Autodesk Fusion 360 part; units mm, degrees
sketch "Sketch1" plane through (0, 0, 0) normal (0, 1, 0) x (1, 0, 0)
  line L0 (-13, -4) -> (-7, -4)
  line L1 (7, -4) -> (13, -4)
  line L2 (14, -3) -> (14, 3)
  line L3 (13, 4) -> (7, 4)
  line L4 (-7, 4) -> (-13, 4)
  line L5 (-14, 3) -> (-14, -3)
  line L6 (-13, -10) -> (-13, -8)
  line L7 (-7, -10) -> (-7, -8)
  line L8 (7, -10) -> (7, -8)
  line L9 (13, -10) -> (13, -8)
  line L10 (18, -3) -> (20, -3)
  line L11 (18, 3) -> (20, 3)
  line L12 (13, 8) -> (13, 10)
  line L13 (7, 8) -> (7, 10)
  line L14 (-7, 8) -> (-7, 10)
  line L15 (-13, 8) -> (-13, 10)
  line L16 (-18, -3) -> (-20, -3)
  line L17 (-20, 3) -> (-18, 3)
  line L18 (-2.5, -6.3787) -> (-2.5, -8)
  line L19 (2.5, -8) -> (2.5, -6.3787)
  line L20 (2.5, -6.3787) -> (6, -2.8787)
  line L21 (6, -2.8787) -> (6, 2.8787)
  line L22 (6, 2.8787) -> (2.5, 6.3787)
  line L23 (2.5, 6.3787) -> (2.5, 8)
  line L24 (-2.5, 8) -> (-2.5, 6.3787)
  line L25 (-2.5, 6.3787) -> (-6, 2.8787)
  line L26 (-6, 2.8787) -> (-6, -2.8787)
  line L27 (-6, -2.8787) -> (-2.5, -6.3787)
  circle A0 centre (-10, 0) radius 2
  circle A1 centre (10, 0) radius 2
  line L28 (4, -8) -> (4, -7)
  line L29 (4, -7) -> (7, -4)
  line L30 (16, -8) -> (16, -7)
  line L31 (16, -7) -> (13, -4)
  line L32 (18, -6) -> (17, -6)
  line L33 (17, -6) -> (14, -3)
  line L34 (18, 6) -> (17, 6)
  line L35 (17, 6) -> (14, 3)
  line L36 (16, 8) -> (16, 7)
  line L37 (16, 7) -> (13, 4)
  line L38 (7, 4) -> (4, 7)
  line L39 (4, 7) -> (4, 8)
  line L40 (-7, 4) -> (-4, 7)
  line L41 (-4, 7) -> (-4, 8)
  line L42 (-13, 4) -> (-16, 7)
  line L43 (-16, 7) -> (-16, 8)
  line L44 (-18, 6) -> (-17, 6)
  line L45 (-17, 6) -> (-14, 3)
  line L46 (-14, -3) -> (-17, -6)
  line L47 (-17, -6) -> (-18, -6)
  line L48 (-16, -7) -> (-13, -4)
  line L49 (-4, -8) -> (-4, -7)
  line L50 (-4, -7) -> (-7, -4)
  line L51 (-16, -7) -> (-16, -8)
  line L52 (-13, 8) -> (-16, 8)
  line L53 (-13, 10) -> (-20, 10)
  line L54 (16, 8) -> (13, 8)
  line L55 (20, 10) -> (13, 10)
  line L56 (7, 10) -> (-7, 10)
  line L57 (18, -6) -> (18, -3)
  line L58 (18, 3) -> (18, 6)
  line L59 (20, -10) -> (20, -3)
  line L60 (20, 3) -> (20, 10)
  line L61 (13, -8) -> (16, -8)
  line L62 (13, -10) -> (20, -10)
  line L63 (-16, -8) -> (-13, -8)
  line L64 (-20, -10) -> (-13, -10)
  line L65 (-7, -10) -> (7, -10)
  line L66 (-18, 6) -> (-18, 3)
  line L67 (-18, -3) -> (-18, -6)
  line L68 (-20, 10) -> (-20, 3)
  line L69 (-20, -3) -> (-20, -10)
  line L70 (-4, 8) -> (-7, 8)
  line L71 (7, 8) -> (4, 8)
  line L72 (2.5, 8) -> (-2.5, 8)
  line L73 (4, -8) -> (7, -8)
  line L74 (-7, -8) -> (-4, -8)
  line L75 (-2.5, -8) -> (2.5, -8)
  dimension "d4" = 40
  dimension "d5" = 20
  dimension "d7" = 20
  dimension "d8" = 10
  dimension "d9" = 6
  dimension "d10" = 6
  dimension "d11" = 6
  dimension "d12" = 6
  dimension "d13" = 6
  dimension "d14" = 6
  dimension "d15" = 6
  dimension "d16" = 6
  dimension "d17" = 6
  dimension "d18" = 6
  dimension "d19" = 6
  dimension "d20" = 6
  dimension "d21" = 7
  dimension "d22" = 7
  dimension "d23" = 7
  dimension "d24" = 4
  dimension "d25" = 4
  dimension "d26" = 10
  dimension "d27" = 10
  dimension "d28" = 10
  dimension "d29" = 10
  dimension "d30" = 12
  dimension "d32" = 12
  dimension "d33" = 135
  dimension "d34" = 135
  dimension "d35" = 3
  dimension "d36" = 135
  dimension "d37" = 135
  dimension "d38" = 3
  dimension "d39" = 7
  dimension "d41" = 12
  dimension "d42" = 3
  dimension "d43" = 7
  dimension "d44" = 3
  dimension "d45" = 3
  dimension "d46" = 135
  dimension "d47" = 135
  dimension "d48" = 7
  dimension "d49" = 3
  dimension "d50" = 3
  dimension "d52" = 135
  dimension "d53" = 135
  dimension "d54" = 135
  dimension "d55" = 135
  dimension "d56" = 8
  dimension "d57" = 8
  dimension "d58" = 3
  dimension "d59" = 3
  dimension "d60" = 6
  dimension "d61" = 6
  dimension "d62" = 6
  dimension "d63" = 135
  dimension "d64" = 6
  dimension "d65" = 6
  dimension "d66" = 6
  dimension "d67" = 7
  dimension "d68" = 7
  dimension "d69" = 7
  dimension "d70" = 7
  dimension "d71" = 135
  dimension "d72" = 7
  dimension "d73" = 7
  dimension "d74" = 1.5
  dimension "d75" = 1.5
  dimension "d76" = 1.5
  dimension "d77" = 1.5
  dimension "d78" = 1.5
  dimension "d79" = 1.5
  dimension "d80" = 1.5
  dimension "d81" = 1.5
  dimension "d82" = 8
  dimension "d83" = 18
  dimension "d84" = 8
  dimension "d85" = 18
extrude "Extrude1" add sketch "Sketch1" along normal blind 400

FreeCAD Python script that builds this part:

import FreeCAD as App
import Part
import Sketcher


def add_polygon(sketch, points):
    """Adds a closed chain of lines whose ends are joined by coincident constraints."""
    first, n = sketch.GeometryCount, len(points)
    for a, b in zip(points, points[1:] + points[:1]):
        sketch.addGeometry(Part.LineSegment(App.Vector(*a, 0), App.Vector(*b, 0)), False)
    for i in range(n):
        sketch.addConstraint(Sketcher.Constraint("Coincident", first + i, 2, first + (i + 1) % n, 1))

doc = App.newDocument("Part")
params = doc.addObject("Spreadsheet::Sheet", "Params")
for row, (alias, value) in enumerate([
    ("sketch1_diameter", "4 mm"),
    ("sketch1_width", "6 mm"),
    ("sketch1_width2", "3 mm"),
    ("sketch1_width3", "7 mm"),
    ("sketch1_width4", "5 mm"),
    ("pad1_length", "400 mm"),
], start=1):
    params.set(f"A{row}", alias)
    params.set(f"B{row}", "=" + value)
    params.setAlias(f"B{row}", alias)

body = doc.addObject("PartDesign::Body", "Body")

# Sketch on XZ plane
sketch1 = body.newObject("Sketcher::SketchObject", "Sketch")
sketch1.AttachmentSupport = (doc.getObject("XZ_Plane"), [""])
sketch1.MapMode = "FlatFace"
add_polygon(sketch1, [(-16, 7), (-13, 4), (-7, 4), (-4, 7), (-4, 8), (-7, 8), (-7, 10), (7, 10), (7, 8), (4, 8), (4, 7), (7, 4), (13, 4), (16, 7), (16, 8), (13, 8), (13, 10), (20, 10), (20, 3), (18, 3), (18, 6), (17, 6), (14, 3), (14, -3), (17, -6), (18, -6), (18, -3), (20, -3), (20, -10), (13, -10), (13, -8), (16, -8), (16, -7), (13, -4), (7, -4), (4, -7), (4, -8), (7, -8), (7, -10), (-7, -10), (-7, -8), (-4, -8), (-4, -7), (-7, -4), (-13, -4), (-16, -7), (-16, -8), (-13, -8), (-13, -10), (-20, -10), (-20, -3), (-18, -3), (-18, -6), (-17, -6), (-14, -3), (-14, 3), (-17, 6), (-18, 6), (-18, 3), (-20, 3), (-20, 10), (-13, 10), (-13, 8), (-16, 8)])  # lines 0-63
sketch1.addGeometry(Part.Circle(App.Vector(-10, 0, 0), App.Vector(0, 0, 1), 2), False)  # 64
add_polygon(sketch1, [(-2.5, 8), (-2.5, 6.4), (-6, 2.9), (-6, -2.9), (-2.5, -6.4), (-2.5, -8), (2.5, -8), (2.5, -6.4), (6, -2.9), (6, 2.9), (2.5, 6.4), (2.5, 8)])  # lines 65-76
sketch1.addGeometry(Part.Circle(App.Vector(10, 0, 0), App.Vector(0, 0, 1), 2), False)  # 77
sketch1.addConstraint(Sketcher.Constraint("Horizontal", 1))
sketch1.addConstraint(Sketcher.Constraint("Vertical", 3))
sketch1.addConstraint(Sketcher.Constraint("Horizontal", 4))
sketch1.addConstraint(Sketcher.Constraint("Vertical", 5))
sketch1.addConstraint(Sketcher.Constraint("Horizontal", 6))
sketch1.addConstraint(Sketcher.Constraint("Vertical", 7))
sketch1.addConstraint(Sketcher.Constraint("Horizontal", 8))
sketch1.addConstraint(Sketcher.Constraint("Vertical", 9))
sketch1.addConstraint(Sketcher.Constraint("Horizontal", 11))
sketch1.addConstraint(Sketcher.Constraint("Vertical", 13))
sketch1.addConstraint(Sketcher.Constraint("Horizontal", 14))
sketch1.addConstraint(Sketcher.Constraint("Vertical", 15))
sketch1.addConstraint(Sketcher.Constraint("Horizontal", 16))
sketch1.addConstraint(Sketcher.Constraint("Vertical", 17))
sketch1.addConstraint(Sketcher.Constraint("Horizontal", 18))
sketch1.addConstraint(Sketcher.Constraint("Vertical", 19))
sketch1.addConstraint(Sketcher.Constraint("Horizontal", 20))
sketch1.addConstraint(Sketcher.Constraint("Vertical", 22))
sketch1.addConstraint(Sketcher.Constraint("Horizontal", 24))
sketch1.addConstraint(Sketcher.Constraint("Vertical", 25))
sketch1.addConstraint(Sketcher.Constraint("Horizontal", 26))
sketch1.addConstraint(Sketcher.Constraint("Vertical", 27))
sketch1.addConstraint(Sketcher.Constraint("Horizontal", 28))
sketch1.addConstraint(Sketcher.Constraint("Vertical", 29))
sketch1.addConstraint(Sketcher.Constraint("Horizontal", 30))
sketch1.addConstraint(Sketcher.Constraint("Vertical", 31))
sketch1.addConstraint(Sketcher.Constraint("Horizontal", 33))
sketch1.addConstraint(Sketcher.Constraint("Vertical", 35))
sketch1.addConstraint(Sketcher.Constraint("Horizontal", 36))
sketch1.addConstraint(Sketcher.Constraint("Vertical", 37))
sketch1.addConstraint(Sketcher.Constraint("Horizontal", 38))
sketch1.addConstraint(Sketcher.Constraint("Vertical", 39))
sketch1.addConstraint(Sketcher.Constraint("Horizontal", 40))
sketch1.addConstraint(Sketcher.Constraint("Vertical", 41))
sketch1.addConstraint(Sketcher.Constraint("Horizontal", 43))
sketch1.addConstraint(Sketcher.Constraint("Vertical", 45))
sketch1.addConstraint(Sketcher.Constraint("Horizontal", 46))
sketch1.addConstraint(Sketcher.Constraint("Vertical", 47))
sketch1.addConstraint(Sketcher.Constraint("Horizontal", 48))
sketch1.addConstraint(Sketcher.Constraint("Vertical", 49))
sketch1.addConstraint(Sketcher.Constraint("Horizontal", 50))
sketch1.addConstraint(Sketcher.Constraint("Vertical", 51))
sketch1.addConstraint(Sketcher.Constraint("Horizontal", 52))
sketch1.addConstraint(Sketcher.Constraint("Vertical", 54))
sketch1.addConstraint(Sketcher.Constraint("Horizontal", 56))
sketch1.addConstraint(Sketcher.Constraint("Vertical", 57))
sketch1.addConstraint(Sketcher.Constraint("Horizontal", 58))
sketch1.addConstraint(Sketcher.Constraint("Vertical", 59))
sketch1.addConstraint(Sketcher.Constraint("Horizontal", 60))
sketch1.addConstraint(Sketcher.Constraint("Vertical", 61))
sketch1.addConstraint(Sketcher.Constraint("Horizontal", 62))
sketch1.addConstraint(Sketcher.Constraint("Vertical", 63))
sketch1.addConstraint(Sketcher.Constraint("Vertical", 65))
sketch1.addConstraint(Sketcher.Constraint("Vertical", 67))
sketch1.addConstraint(Sketcher.Constraint("Vertical", 69))
sketch1.addConstraint(Sketcher.Constraint("Horizontal", 70))
sketch1.addConstraint(Sketcher.Constraint("Vertical", 71))
sketch1.addConstraint(Sketcher.Constraint("Vertical", 73))
sketch1.addConstraint(Sketcher.Constraint("Vertical", 75))
sketch1.addConstraint(Sketcher.Constraint("Horizontal", 76))
sketch1.addConstraint(Sketcher.Constraint("Equal", 64, 77))
sketch1.addConstraint(Sketcher.Constraint("Symmetric", 64, 3, 77, 3, -1, 1))
sketch1.addConstraint(Sketcher.Constraint("Symmetric", 0, 2, 32, 2, -1, 1))
sketch1.addConstraint(Sketcher.Constraint("Symmetric", 2, 2, 34, 2, -1, 1))
sketch1.addConstraint(Sketcher.Constraint("Symmetric", 4, 2, 36, 2, -1, 1))
sketch1.addConstraint(Sketcher.Constraint("Symmetric", 6, 2, 38, 2, -1, 1))
sketch1.addConstraint(Sketcher.Constraint("Symmetric", 8, 2, 40, 2, -1, 1))
sketch1.addConstraint(Sketcher.Constraint("Symmetric", 10, 2, 42, 2, -1, 1))
sketch1.addConstraint(Sketcher.Constraint("Symmetric", 12, 2, 44, 2, -1, 1))
sketch1.addConstraint(Sketcher.Constraint("Symmetric", 14, 2, 46, 2, -1, 1))
sketch1.addConstraint(Sketcher.Constraint("Symmetric", 16, 2, 48, 2, -1, 1))
sketch1.addConstraint(Sketcher.Constraint("Symmetric", 18, 2, 50, 2, -1, 1))
sketch1.addConstraint(Sketcher.Constraint("Symmetric", 20, 2, 52, 2, -1, 1))
sketch1.addConstraint(Sketcher.Constraint("Symmetric", 21, 2, 53, 2, -1, 1))
sketch1.addConstraint(Sketcher.Constraint("Symmetric", 23, 2, 55, 2, -1, 1))
sketch1.addConstraint(Sketcher.Constraint("Symmetric", 25, 2, 57, 2, -1, 1))
sketch1.addConstraint(Sketcher.Constraint("Symmetric", 27, 2, 59, 2, -1, 1))
sketch1.addConstraint(Sketcher.Constraint("Symmetric", 29, 2, 61, 2, -1, 1))
sketch1.addConstraint(Sketcher.Constraint("Symmetric", 31, 2, 63, 2, -1, 1))
sketch1.addConstraint(Sketcher.Constraint("Symmetric", 65, 2, 71, 2, -1, 1))
sketch1.addConstraint(Sketcher.Constraint("Symmetric", 66, 2, 72, 2, -1, 1))
sketch1.addConstraint(Sketcher.Constraint("Symmetric", 68, 2, 74, 2, -1, 1))
sketch1.addConstraint(Sketcher.Constraint("Symmetric", 4, 2, 7, 2, -2))
sketch1.addConstraint(Sketcher.Constraint("Symmetric", 2, 2, 9, 2, -2))
sketch1.addConstraint(Sketcher.Constraint("Symmetric", 1, 2, 10, 2, -2))
sketch1.addConstraint(Sketcher.Constraint("Symmetric", 31, 2, 44, 2, -2))
sketch1.addConstraint(Sketcher.Constraint("Symmetric", 29, 2, 46, 2, -2))
sketch1.addConstraint(Sketcher.Constraint("Symmetric", 27, 2, 48, 2, -2))
sketch1.addConstraint(Sketcher.Constraint("Symmetric", 25, 2, 50, 2, -2))
sketch1.addConstraint(Sketcher.Constraint("Symmetric", 23, 2, 52, 2, -2))
sketch1.addConstraint(Sketcher.Constraint("Symmetric", 68, 2, 71, 2, -2))
sketch1.addConstraint(Sketcher.Constraint("PointOnObject", 64, 3, -1))
sketch1.addConstraint(Sketcher.Constraint("Perpendicular", 0, 2))
sketch1.addConstraint(Sketcher.Constraint("Perpendicular", 2, 10))
sketch1.addConstraint(Sketcher.Constraint("Perpendicular", 10, 12))
sketch1.addConstraint(Sketcher.Constraint("Parallel", 12, 21))
sketch1.addConstraint(Sketcher.Constraint("Perpendicular", 21, 23))
sketch1.addConstraint(Sketcher.Constraint("Perpendicular", 32, 34))
sketch1.addConstraint(Sketcher.Constraint("Perpendicular", 34, 42))
sketch1.addConstraint(Sketcher.Constraint("Perpendicular", 42, 44))
sketch1.addConstraint(Sketcher.Constraint("Perpendicular", 53, 55))
sketch1.addConstraint(Sketcher.Constraint("Perpendicular", 55, 66))
sketch1.addConstraint(Sketcher.Constraint("Perpendicular", 66, 68))
sketch1.addConstraint(Sketcher.Constraint("Perpendicular", 72, 74))
sketch1.addConstraint(Sketcher.Constraint("Horizontal", 9, 2, 12, 2))
sketch1.addConstraint(Sketcher.Constraint("Horizontal", 8, 2, 13, 2))
sketch1.addConstraint(Sketcher.Constraint("Horizontal", 6, 2, 15, 2))
sketch1.addConstraint(Sketcher.Constraint("Horizontal", 18, 2, 21, 2))
sketch1.addConstraint(Sketcher.Constraint("Horizontal", 46, 2, 69, 2))
sketch1.addConstraint(Sketcher.Constraint("Horizontal", 62, 2, 75, 2))
sketch1.addConstraint(Sketcher.Constraint("Vertical", 1, 2, 4, 2))
sketch1.addConstraint(Sketcher.Constraint("Vertical", 11, 2, 14, 2))
sketch1.addConstraint(Sketcher.Constraint("Equal", 56, 3))
sketch1.addConstraint(Sketcher.Constraint("Equal", 58, 5))
sketch1.addConstraint(Sketcher.Constraint("Equal", 60, 17))
sketch1.addConstraint(Sketcher.Constraint("Equal", 62, 19))
sketch1.addConstraint(Sketcher.Constraint("Equal", 43, 22))
sketch1.addConstraint(Sketcher.Constraint("Diameter", 64, 4.0))
sketch1.addConstraint(Sketcher.Constraint("DistanceX", 1, 1, 1, 2, 6.0))
sketch1.addConstraint(Sketcher.Constraint("DistanceX", 4, 2, 4, 1, 3.0))
sketch1.addConstraint(Sketcher.Constraint("DistanceX", 16, 1, 16, 2, 7.0))
sketch1.addConstraint(Sketcher.Constraint("DistanceX", 64, 3, -1, 1, 10.0))
sketch1.addConstraint(Sketcher.Constraint("DistanceY", -1, 1, 0, 2, 4.0))
sketch1.addConstraint(Sketcher.Constraint("DistanceX", 1, 2, -1, 1, 7.0))
sketch1.addConstraint(Sketcher.Constraint("DistanceY", -1, 1, 3, 2, 8.0))
sketch1.addConstraint(Sketcher.Constraint("DistanceX", 66, 2, -1, 1, 6.0))
sketch1.addConstraint(Sketcher.Constraint("DistanceX", 70, 1, 70, 2, 5.0))
sketch1.addConstraint(Sketcher.Constraint("DistanceY", 65, 2, 65, 1, 1.6213))
sketch1.setExpression("Constraints[193]", "Params.sketch1_diameter")
sketch1.setExpression("Constraints[194]", "Params.sketch1_width")
sketch1.setExpression("Constraints[195]", "Params.sketch1_width2")
sketch1.setExpression("Constraints[196]", "Params.sketch1_width3")
sketch1.setExpression("Constraints[202]", "Params.sketch1_width4")
pad1 = body.newObject("PartDesign::Pad", "Pad")
pad1.Profile = sketch1
pad1.setExpression("Length", "Params.pad1_length")
pad1.Reversed = True

doc.recompute()
